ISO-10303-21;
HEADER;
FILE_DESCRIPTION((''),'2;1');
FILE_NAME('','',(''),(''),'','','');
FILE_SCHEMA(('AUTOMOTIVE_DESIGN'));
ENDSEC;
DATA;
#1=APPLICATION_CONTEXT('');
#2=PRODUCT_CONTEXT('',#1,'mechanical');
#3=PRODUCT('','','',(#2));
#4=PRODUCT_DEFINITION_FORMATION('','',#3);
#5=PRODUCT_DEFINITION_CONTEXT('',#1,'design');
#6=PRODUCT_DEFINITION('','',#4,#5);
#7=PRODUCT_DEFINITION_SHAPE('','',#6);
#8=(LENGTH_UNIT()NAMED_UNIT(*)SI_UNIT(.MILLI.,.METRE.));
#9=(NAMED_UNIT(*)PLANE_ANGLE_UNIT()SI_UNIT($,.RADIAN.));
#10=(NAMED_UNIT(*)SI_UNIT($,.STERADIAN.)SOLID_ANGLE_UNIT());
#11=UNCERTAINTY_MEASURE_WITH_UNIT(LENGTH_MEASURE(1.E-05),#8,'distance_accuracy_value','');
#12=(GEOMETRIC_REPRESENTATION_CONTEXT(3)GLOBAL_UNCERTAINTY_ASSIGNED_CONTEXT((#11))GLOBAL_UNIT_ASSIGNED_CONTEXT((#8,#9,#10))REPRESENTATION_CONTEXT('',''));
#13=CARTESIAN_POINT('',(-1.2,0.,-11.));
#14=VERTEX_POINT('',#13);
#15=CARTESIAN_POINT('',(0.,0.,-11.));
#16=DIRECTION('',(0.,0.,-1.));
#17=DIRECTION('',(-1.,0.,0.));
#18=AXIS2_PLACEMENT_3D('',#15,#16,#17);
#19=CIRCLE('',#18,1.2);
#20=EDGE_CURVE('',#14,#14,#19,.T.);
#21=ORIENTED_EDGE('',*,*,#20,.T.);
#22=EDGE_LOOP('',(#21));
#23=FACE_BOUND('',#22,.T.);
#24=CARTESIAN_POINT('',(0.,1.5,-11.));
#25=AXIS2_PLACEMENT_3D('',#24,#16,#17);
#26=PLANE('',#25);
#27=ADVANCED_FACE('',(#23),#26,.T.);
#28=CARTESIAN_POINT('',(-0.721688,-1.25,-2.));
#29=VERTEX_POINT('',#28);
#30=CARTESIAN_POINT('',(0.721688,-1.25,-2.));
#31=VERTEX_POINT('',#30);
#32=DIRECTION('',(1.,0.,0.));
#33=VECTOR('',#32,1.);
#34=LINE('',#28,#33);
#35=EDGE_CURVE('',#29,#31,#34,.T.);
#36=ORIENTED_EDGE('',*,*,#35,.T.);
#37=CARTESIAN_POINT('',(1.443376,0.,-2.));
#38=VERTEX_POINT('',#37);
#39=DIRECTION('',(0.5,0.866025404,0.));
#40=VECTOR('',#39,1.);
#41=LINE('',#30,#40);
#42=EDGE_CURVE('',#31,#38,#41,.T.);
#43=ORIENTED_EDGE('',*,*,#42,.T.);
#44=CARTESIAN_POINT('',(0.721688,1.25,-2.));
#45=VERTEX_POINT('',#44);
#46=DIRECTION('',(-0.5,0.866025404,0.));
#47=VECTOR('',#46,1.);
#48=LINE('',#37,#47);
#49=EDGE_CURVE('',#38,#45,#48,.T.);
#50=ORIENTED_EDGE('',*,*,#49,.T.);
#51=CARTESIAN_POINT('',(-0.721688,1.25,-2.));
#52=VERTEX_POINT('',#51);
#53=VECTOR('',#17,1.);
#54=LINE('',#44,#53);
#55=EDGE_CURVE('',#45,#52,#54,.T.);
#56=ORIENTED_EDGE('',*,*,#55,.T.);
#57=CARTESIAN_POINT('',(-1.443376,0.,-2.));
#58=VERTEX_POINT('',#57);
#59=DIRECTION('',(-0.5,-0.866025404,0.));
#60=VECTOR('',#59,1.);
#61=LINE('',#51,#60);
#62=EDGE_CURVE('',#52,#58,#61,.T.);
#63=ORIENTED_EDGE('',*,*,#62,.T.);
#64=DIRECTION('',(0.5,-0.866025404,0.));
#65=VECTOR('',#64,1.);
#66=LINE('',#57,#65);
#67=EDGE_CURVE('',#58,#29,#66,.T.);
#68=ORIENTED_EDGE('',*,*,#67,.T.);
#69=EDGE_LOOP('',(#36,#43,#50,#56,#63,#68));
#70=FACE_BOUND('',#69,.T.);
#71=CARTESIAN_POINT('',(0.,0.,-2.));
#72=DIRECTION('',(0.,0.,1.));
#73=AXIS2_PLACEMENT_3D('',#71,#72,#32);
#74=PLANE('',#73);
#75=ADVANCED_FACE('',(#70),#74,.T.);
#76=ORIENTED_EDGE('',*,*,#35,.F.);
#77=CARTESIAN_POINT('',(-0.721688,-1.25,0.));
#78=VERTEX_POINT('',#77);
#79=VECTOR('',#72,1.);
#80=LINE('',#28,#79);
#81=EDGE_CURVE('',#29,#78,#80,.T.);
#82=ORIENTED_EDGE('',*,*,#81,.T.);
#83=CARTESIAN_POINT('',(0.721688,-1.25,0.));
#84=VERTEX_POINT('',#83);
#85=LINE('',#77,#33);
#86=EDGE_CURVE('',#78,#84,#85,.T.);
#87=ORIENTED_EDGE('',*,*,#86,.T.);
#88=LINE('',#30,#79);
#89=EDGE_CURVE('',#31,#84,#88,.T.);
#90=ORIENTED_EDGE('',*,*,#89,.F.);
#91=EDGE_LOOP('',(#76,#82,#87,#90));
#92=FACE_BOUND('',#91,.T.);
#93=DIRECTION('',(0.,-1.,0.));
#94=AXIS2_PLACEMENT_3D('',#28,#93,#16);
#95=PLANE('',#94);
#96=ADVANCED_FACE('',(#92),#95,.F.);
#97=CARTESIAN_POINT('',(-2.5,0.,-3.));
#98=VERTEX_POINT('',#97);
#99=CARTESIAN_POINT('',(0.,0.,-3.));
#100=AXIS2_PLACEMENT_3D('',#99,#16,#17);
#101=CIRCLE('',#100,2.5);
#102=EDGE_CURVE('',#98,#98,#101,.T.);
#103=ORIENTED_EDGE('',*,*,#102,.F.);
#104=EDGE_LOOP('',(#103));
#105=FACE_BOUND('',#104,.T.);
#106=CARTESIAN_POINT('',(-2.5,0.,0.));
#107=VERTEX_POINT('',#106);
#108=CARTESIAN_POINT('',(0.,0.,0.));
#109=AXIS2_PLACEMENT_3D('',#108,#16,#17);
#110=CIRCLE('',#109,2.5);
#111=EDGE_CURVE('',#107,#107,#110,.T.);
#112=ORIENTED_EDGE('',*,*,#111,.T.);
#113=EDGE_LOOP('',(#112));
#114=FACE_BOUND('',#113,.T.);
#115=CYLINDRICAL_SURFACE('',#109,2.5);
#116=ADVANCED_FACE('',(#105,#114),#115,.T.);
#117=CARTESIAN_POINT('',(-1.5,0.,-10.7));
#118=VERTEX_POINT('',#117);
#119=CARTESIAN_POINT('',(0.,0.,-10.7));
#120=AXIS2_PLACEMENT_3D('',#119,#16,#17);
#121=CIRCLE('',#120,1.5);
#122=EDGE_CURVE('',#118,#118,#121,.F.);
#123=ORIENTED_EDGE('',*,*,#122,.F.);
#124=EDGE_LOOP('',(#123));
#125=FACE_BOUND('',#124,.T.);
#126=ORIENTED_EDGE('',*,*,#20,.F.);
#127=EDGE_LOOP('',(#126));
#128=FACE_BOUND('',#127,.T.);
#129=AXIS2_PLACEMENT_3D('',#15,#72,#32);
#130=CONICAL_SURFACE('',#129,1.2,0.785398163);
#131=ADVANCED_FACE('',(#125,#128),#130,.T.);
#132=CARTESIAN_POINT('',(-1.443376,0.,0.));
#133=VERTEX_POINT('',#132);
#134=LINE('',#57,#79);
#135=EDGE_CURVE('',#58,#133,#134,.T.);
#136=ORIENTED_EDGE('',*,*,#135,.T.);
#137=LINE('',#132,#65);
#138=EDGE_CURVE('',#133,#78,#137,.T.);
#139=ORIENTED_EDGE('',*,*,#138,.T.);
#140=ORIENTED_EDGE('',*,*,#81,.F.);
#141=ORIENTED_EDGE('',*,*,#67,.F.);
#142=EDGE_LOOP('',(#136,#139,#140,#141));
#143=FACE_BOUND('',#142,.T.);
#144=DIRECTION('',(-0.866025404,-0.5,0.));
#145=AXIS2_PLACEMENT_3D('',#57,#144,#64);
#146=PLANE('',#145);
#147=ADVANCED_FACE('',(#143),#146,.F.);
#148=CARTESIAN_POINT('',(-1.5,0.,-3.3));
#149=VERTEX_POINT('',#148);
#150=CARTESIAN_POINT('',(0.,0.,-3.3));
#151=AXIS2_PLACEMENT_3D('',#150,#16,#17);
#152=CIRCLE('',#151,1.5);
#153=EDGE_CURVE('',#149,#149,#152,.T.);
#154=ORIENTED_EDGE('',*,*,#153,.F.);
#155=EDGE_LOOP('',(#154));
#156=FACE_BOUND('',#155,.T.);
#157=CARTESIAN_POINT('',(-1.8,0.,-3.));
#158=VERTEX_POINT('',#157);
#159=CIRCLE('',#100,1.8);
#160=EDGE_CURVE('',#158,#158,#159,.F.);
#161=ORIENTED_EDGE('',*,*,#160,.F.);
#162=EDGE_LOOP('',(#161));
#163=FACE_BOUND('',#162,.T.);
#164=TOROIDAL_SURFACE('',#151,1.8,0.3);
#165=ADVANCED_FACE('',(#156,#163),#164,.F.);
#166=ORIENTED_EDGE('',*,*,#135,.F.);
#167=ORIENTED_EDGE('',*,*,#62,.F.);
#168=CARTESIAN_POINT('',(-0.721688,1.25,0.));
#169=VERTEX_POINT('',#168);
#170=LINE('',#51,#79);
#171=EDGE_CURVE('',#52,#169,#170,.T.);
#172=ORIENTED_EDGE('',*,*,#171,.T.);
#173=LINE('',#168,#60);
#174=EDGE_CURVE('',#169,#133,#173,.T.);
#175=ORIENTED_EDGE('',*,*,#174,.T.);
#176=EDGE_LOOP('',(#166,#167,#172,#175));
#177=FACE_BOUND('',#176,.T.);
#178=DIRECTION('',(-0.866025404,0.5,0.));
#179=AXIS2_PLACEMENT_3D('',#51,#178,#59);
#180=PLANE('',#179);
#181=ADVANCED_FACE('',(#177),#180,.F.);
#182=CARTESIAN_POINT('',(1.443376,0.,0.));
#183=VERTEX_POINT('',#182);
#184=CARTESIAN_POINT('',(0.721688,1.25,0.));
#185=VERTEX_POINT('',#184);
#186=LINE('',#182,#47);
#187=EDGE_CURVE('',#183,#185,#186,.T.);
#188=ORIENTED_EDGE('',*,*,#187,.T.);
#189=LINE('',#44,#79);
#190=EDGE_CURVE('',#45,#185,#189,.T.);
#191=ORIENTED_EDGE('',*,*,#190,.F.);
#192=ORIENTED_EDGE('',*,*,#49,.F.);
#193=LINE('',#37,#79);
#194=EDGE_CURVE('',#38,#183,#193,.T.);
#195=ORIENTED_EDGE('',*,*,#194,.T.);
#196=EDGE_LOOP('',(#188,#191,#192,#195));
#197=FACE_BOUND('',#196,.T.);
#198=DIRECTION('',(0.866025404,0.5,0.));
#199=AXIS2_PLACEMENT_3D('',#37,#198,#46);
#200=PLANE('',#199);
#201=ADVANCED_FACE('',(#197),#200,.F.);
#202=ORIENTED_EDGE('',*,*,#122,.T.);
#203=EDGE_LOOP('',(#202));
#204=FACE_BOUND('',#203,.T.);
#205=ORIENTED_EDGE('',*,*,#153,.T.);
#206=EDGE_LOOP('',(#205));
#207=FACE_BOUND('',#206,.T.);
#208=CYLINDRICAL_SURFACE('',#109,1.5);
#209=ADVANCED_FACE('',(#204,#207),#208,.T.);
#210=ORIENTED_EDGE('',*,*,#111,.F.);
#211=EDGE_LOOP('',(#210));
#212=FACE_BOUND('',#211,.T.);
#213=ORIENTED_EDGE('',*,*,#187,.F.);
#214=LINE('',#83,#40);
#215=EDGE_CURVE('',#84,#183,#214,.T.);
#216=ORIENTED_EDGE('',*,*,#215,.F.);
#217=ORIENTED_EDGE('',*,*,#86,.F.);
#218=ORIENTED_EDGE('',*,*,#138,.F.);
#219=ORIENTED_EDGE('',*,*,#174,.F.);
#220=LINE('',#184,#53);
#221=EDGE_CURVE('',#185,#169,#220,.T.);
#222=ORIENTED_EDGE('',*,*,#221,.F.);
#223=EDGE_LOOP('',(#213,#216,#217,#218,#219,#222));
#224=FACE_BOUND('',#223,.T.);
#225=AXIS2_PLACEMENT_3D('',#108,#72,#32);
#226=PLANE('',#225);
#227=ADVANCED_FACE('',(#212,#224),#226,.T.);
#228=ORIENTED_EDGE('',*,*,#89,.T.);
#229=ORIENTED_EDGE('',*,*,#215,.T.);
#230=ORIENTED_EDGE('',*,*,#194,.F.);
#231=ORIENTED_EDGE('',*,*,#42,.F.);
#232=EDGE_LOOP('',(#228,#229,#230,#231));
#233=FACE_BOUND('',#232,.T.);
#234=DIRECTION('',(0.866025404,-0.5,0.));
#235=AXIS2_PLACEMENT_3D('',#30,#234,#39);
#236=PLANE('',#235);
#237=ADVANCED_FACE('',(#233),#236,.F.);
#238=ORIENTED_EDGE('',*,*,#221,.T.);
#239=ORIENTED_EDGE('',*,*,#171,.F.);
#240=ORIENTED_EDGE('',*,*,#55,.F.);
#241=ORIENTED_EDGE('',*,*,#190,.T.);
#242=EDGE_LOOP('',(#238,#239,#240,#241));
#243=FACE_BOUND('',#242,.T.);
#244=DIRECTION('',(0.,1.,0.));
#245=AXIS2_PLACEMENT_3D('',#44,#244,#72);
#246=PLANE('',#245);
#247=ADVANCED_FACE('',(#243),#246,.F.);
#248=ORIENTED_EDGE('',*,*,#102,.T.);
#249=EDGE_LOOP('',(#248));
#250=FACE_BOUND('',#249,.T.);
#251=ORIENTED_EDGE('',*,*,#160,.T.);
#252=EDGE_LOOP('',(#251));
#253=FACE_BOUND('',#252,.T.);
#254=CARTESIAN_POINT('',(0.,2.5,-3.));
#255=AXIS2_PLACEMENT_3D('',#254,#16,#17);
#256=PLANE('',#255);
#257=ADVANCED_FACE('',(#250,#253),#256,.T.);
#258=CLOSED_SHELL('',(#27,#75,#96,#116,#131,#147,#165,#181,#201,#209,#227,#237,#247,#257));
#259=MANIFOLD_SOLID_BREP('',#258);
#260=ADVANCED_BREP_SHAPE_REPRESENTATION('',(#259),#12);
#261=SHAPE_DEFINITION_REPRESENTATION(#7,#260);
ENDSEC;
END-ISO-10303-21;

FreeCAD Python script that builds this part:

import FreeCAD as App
import Part
import Sketcher

V = App.Vector
Q = App.Units.Quantity


def edges_at(feature, points):
    """Names of the edges that pass closest to the given points."""
    edges = feature.Shape.Edges
    near = lambda p: min(range(len(edges)), key=lambda i: edges[i].distToShape(Part.Vertex(*p))[0])
    return sorted({f"Edge{near(p) + 1}" for p in points})


def add_polygon(sketch, points):
    """Adds a closed chain of lines whose ends are joined by coincident constraints."""
    first, n = sketch.GeometryCount, len(points)
    for a, b in zip(points, points[1:] + points[:1]):
        sketch.addGeometry(Part.LineSegment(App.Vector(*a, 0), App.Vector(*b, 0)), False)
    for i in range(n):
        sketch.addConstraint(Sketcher.Constraint("Coincident", first + i, 2, first + (i + 1) % n, 1))

doc = App.newDocument("Part")
params = doc.addObject("Spreadsheet::Sheet", "Params")
for row, (alias, value) in enumerate([
    ("sketch1_width", "1 mm"),
    ("sketch1_height", "11 mm"),
    ("sketch1_height2", "8 mm"),
    ("sketch1_width2", "2.5 mm"),
    ("revolution_angle", "360 deg"),
    ("pocket1_length", "2 mm"),
    ("fillet_radius", "0.3 mm"),
    ("chamfer_size", "0.3 mm"),
], start=1):
    params.set(f"A{row}", alias)
    params.set(f"B{row}", "=" + value)
    params.setAlias(f"B{row}", alias)

body = doc.addObject("PartDesign::Body", "Body")

sketch1 = doc.addObject("Sketcher::SketchObject", "Sketch")
body.addObject(sketch1)
sketch1.AttachmentSupport = (doc.YZ_Plane, [""])
sketch1.MapMode = "FlatFace"
add_polygon(sketch1, [(2.5, 0), (0, 0), (0, -11), (1.5, -11), (1.5, -3), (2.5, -3)])
sketch1.addConstraint(Sketcher.Constraint("Horizontal", 0))
sketch1.addConstraint(Sketcher.Constraint("Vertical", 1))
sketch1.addConstraint(Sketcher.Constraint("Horizontal", 2))
sketch1.addConstraint(Sketcher.Constraint("Vertical", 3))
sketch1.addConstraint(Sketcher.Constraint("Horizontal", 4))
sketch1.addConstraint(Sketcher.Constraint("Vertical", 5))
sketch1.addConstraint(Sketcher.Constraint("Coincident", 0, 2, -1, 1))
sketch1.addConstraint(Sketcher.Constraint("DistanceX", 4, 1, 4, 2, Q("1 mm")))
sketch1.addConstraint(Sketcher.Constraint("DistanceY", 1, 2, 1, 1, Q("11 mm")))
sketch1.addConstraint(Sketcher.Constraint("DistanceY", 3, 1, 3, 2, Q("8 mm")))
sketch1.addConstraint(Sketcher.Constraint("DistanceX", 0, 2, 0, 1, Q("2.5 mm")))
sketch1.setExpression("Constraints[13]", "Params.sketch1_width")
sketch1.setExpression("Constraints[14]", "Params.sketch1_height")
sketch1.setExpression("Constraints[15]", "Params.sketch1_height2")
sketch1.setExpression("Constraints[16]", "Params.sketch1_width2")
revolution = doc.addObject("PartDesign::Revolution", "Revolution")
body.addObject(revolution)
revolution.Profile = sketch1
revolution.ReferenceAxis = (sketch1, ["V_Axis"])
revolution.setExpression("Angle", "Params.revolution_angle")

sketch2 = doc.addObject("Sketcher::SketchObject", "Sketch001")
body.addObject(sketch2)
sketch2.AttachmentSupport = (doc.XY_Plane, [""])
sketch2.MapMode = "FlatFace"
add_polygon(sketch2, [(1.4, 0), (0.7, 1.2), (-0.7, 1.2), (-1.4, 0), (-0.7, -1.2), (0.7, -1.2)])
sketch2.addConstraint(Sketcher.Constraint("Horizontal", 1))
sketch2.addConstraint(Sketcher.Constraint("Horizontal", 4))
sketch2.addConstraint(Sketcher.Constraint("Symmetric", 0, 2, 3, 2, -1, 1))
sketch2.addConstraint(Sketcher.Constraint("Symmetric", 2, 2, 5, 2, -1, 1))
sketch2.addConstraint(Sketcher.Constraint("PointOnObject", 2, 2, -1))
sketch2.addConstraint(Sketcher.Constraint("Parallel", 2, 5))
sketch2.addConstraint(Sketcher.Constraint("Vertical", 1, 2, 3, 2))
sketch2.addConstraint(Sketcher.Constraint("Angle", 0, Q("120 deg")))
sketch2.addConstraint(Sketcher.Constraint("DistanceY", 3, 2, 1, 2, Q("2.5 mm")))
sketch2.addConstraint(Sketcher.Constraint("DistanceX", 1, 2, 1, 1, Q("1.443376 mm")))
pocket1 = doc.addObject("PartDesign::Pocket", "Pocket")
body.addObject(pocket1)
pocket1.Profile = sketch2
pocket1.setExpression("Length", "Params.pocket1_length")
doc.recompute()

fillet = doc.addObject("PartDesign::Fillet", "Fillet")
body.addObject(fillet)
fillet.Base = (pocket1, edges_at(pocket1, [(1.5, 0, -3)]))
fillet.setExpression("Radius", "Params.fillet_radius")
doc.recompute()

chamfer = doc.addObject("PartDesign::Chamfer", "Chamfer")
body.addObject(chamfer)
chamfer.Base = (fillet, edges_at(fillet, [(1.5, 0, -11)]))
chamfer.setExpression("Size", "Params.chamfer_size")

doc.recompute()
